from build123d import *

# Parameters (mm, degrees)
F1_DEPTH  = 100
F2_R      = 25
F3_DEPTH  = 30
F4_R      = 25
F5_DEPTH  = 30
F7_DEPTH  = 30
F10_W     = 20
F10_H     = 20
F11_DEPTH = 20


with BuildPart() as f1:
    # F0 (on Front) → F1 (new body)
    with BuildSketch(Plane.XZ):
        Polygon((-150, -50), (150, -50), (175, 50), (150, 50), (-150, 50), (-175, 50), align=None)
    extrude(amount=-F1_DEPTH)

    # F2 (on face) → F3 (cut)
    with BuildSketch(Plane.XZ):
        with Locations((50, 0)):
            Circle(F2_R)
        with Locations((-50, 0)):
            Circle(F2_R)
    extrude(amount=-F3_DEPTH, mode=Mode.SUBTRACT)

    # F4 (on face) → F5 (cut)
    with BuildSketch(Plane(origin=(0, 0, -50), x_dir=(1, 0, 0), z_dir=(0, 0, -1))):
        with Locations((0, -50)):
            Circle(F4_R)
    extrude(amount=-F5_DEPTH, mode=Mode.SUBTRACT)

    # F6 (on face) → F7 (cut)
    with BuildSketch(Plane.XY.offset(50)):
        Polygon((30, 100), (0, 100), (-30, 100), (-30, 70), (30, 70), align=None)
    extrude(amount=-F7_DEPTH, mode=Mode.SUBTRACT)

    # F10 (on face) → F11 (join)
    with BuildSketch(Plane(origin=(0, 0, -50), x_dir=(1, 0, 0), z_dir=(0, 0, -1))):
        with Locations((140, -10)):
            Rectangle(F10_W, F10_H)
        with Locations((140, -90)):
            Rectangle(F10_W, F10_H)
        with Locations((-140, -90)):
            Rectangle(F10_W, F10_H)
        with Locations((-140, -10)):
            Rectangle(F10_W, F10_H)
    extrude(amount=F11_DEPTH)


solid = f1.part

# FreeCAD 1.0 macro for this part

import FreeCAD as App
import Part
import Sketcher
from FreeCAD import Vector


def add_polygon(sketch, points):
    """Adds a closed chain of lines whose ends are joined by coincident constraints."""
    first, n = sketch.GeometryCount, len(points)
    for a, b in zip(points, points[1:] + points[:1]):
        sketch.addGeometry(Part.LineSegment(App.Vector(*a, 0), App.Vector(*b, 0)), False)
    for i in range(n):
        sketch.addConstraint(Sketcher.Constraint("Coincident", first + i, 2, first + (i + 1) % n, 1))

doc = App.newDocument("Part")
params = doc.addObject("Spreadsheet::Sheet", "Params")
for row, (alias, value) in enumerate([
    ("sketch1_width", "300 mm"),
    ("sketch1_width2", "350 mm"),
    ("pad1_length", "100 mm"),
    ("sketch2_diameter", "50 mm"),
    ("pocket1_length", "30 mm"),
    ("sketch3_diameter", "50 mm"),
    ("pocket2_length", "30 mm"),
    ("sketch4_width", "60 mm"),
    ("sketch4_height", "30 mm"),
    ("pocket3_length", "30 mm"),
    ("sketch5_width", "20 mm"),
    ("pad2_length", "20 mm"),
], start=1):
    params.set(f"A{row}", alias)
    params.set(f"B{row}", "=" + value)
    params.setAlias(f"B{row}", alias)

body = doc.addObject("PartDesign::Body", "Body")

sketch1 = doc.addObject("Sketcher::SketchObject", "Sketch")
body.addObject(sketch1)
sketch1.AttachmentSupport = (doc.XZ_Plane, [""])
sketch1.MapMode = "FlatFace"
add_polygon(sketch1, [(-150, -50), (150, -50), (175, 50), (-175, 50)])
sketch1.addConstraint([
    Sketcher.Constraint("Horizontal", 0),
    Sketcher.Constraint("Horizontal", 2),
    Sketcher.Constraint("Equal", 1, 3),
    Sketcher.Constraint("DistanceX", 0, 1, 0, 2, 300.0),
    Sketcher.Constraint("DistanceX", 2, 2, 2, 1, 350.0),
    Sketcher.Constraint("DistanceX", -1, 1, 0, 2, 150.0),
    Sketcher.Constraint("DistanceY", 0, 2, -1, 1, 50.0),
    Sketcher.Constraint("DistanceY", -1, 1, 1, 2, 50.0),
])
sketch1.setExpression("Constraints[7]", "Params.sketch1_width")
sketch1.setExpression("Constraints[8]", "Params.sketch1_width2")
pad1 = doc.addObject("PartDesign::Pad", "Pad")
body.addObject(pad1)
pad1.Profile = sketch1
pad1.setExpression("Length", "Params.pad1_length")
pad1.Reversed = True

sketch2 = doc.addObject("Sketcher::SketchObject", "Sketch001")
body.addObject(sketch2)
sketch2.AttachmentSupport = (doc.XZ_Plane, [""])
sketch2.MapMode = "FlatFace"
sketch2.addGeometry([
    Part.Circle(Vector(50, 0, 0), Vector(0, 0, 1), 25),
    Part.Circle(Vector(-50, 0, 0), Vector(0, 0, 1), 25),
], False)
sketch2.addConstraint([
    Sketcher.Constraint("Equal", 0, 1),
    Sketcher.Constraint("Symmetric", 0, 3, 1, 3, -1, 1),
    Sketcher.Constraint("PointOnObject", 0, 3, -1),
    Sketcher.Constraint("Diameter", 0, 50.0),
    Sketcher.Constraint("DistanceX", -1, 1, 0, 3, 50.0),
])
sketch2.setExpression("Constraints[3]", "Params.sketch2_diameter")
pocket1 = doc.addObject("PartDesign::Pocket", "Pocket")
body.addObject(pocket1)
pocket1.Profile = sketch2
pocket1.setExpression("Length", "Params.pocket1_length")

sketch3 = doc.addObject("Sketcher::SketchObject", "Sketch002")
body.addObject(sketch3)
sketch3.AttachmentSupport = (doc.XY_Plane, [""])
sketch3.MapMode = "FlatFace"
sketch3.AttachmentOffset = App.Placement(Vector(0, 0, -50), App.Rotation())
sketch3.addGeometry(Part.Circle(Vector(0, 50, 0), Vector(0, 0, 1), 25), False)
sketch3.addConstraint([
    Sketcher.Constraint("PointOnObject", 0, 3, -2),
    Sketcher.Constraint("Diameter", 0, 50.0),
    Sketcher.Constraint("DistanceY", -1, 1, 0, 3, 50.0),
])
sketch3.setExpression("Constraints[1]", "Params.sketch3_diameter")
pocket2 = doc.addObject("PartDesign::Pocket", "Pocket001")
body.addObject(pocket2)
pocket2.Profile = sketch3
pocket2.setExpression("Length", "Params.pocket2_length")
pocket2.Reversed = True

sketch4 = doc.addObject("Sketcher::SketchObject", "Sketch003")
body.addObject(sketch4)
sketch4.AttachmentSupport = (doc.XY_Plane, [""])
sketch4.MapMode = "FlatFace"
sketch4.AttachmentOffset = App.Placement(Vector(0, 0, 50), App.Rotation())
add_polygon(sketch4, [(30, 100), (-30, 100), (-30, 70), (30, 70)])
sketch4.addConstraint([
    Sketcher.Constraint("Horizontal", 0),
    Sketcher.Constraint("Vertical", 1),
    Sketcher.Constraint("Horizontal", 2),
    Sketcher.Constraint("Vertical", 3),
    Sketcher.Constraint("DistanceX", 0, 2, 0, 1, 60.0),
    Sketcher.Constraint("DistanceY", 1, 2, 1, 1, 30.0),
    Sketcher.Constraint("DistanceX", 0, 2, -1, 1, 30.0),
    Sketcher.Constraint("DistanceY", -1, 1, 0, 2, 100.0),
])
sketch4.setExpression("Constraints[8]", "Params.sketch4_width")
sketch4.setExpression("Constraints[9]", "Params.sketch4_height")
pocket3 = doc.addObject("PartDesign::Pocket", "Pocket002")
body.addObject(pocket3)
pocket3.Profile = sketch4
pocket3.setExpression("Length", "Params.pocket3_length")

sketch5 = doc.addObject("Sketcher::SketchObject", "Sketch004")
body.addObject(sketch5)
sketch5.AttachmentSupport = (doc.XY_Plane, [""])
sketch5.MapMode = "FlatFace"
sketch5.AttachmentOffset = App.Placement(Vector(0, 0, -50), App.Rotation())
add_polygon(sketch5, [(130, 0), (130, 20), (150, 20), (150, 0)])
add_polygon(sketch5, [(130, 80), (130, 100), (150, 100), (150, 80)])
add_polygon(sketch5, [(-150, 80), (-150, 100), (-130, 100), (-130, 80)])
add_polygon(sketch5, [(-150, 0), (-150, 20), (-130, 20), (-130, 0)])
sketch5.addConstraint([
    Sketcher.Constraint("Vertical", 0),
    Sketcher.Constraint("Horizontal", 1),
    Sketcher.Constraint("Vertical", 2),
    Sketcher.Constraint("Horizontal", 3),
    Sketcher.Constraint("Vertical", 4),
    Sketcher.Constraint("Horizontal", 5),
    Sketcher.Constraint("Vertical", 6),
    Sketcher.Constraint("Horizontal", 7),
    Sketcher.Constraint("Vertical", 8),
    Sketcher.Constraint("Horizontal", 9),
    Sketcher.Constraint("Vertical", 10),
    Sketcher.Constraint("Horizontal", 11),
    Sketcher.Constraint("Vertical", 12),
    Sketcher.Constraint("Horizontal", 13),
    Sketcher.Constraint("Vertical", 14),
    Sketcher.Constraint("Horizontal", 15),
    Sketcher.Constraint("Symmetric", 3, 2, 14, 2, -1, 1),
    Sketcher.Constraint("Symmetric", 5, 2, 8, 2, -2),
    Sketcher.Constraint("Symmetric", 7, 2, 10, 2, -2),
    Sketcher.Constraint("Symmetric", 1, 2, 12, 2, -2),
    Sketcher.Constraint("PointOnObject", 2, 2, -1),
    Sketcher.Constraint("Vertical", 3, 2, 4, 2),
    Sketcher.Constraint("Vertical", 2, 2, 5, 2),
    Sketcher.Constraint("Equal", 15, 0),
    Sketcher.Constraint("Equal", 2, 4),
    Sketcher.Constraint("DistanceX", 1, 1, 1, 2, 20.0),
    Sketcher.Constraint("DistanceX", -1, 1, 0, 2, 130.0),
    Sketcher.Constraint("DistanceY", -1, 1, 4, 2, 100.0),
])
sketch5.setExpression("Constraints[41]", "Params.sketch5_width")
pad2 = doc.addObject("PartDesign::Pad", "Pad001")
body.addObject(pad2)
pad2.Profile = sketch5
pad2.setExpression("Length", "Params.pad2_length")
pad2.Reversed = True

doc.recompute()
